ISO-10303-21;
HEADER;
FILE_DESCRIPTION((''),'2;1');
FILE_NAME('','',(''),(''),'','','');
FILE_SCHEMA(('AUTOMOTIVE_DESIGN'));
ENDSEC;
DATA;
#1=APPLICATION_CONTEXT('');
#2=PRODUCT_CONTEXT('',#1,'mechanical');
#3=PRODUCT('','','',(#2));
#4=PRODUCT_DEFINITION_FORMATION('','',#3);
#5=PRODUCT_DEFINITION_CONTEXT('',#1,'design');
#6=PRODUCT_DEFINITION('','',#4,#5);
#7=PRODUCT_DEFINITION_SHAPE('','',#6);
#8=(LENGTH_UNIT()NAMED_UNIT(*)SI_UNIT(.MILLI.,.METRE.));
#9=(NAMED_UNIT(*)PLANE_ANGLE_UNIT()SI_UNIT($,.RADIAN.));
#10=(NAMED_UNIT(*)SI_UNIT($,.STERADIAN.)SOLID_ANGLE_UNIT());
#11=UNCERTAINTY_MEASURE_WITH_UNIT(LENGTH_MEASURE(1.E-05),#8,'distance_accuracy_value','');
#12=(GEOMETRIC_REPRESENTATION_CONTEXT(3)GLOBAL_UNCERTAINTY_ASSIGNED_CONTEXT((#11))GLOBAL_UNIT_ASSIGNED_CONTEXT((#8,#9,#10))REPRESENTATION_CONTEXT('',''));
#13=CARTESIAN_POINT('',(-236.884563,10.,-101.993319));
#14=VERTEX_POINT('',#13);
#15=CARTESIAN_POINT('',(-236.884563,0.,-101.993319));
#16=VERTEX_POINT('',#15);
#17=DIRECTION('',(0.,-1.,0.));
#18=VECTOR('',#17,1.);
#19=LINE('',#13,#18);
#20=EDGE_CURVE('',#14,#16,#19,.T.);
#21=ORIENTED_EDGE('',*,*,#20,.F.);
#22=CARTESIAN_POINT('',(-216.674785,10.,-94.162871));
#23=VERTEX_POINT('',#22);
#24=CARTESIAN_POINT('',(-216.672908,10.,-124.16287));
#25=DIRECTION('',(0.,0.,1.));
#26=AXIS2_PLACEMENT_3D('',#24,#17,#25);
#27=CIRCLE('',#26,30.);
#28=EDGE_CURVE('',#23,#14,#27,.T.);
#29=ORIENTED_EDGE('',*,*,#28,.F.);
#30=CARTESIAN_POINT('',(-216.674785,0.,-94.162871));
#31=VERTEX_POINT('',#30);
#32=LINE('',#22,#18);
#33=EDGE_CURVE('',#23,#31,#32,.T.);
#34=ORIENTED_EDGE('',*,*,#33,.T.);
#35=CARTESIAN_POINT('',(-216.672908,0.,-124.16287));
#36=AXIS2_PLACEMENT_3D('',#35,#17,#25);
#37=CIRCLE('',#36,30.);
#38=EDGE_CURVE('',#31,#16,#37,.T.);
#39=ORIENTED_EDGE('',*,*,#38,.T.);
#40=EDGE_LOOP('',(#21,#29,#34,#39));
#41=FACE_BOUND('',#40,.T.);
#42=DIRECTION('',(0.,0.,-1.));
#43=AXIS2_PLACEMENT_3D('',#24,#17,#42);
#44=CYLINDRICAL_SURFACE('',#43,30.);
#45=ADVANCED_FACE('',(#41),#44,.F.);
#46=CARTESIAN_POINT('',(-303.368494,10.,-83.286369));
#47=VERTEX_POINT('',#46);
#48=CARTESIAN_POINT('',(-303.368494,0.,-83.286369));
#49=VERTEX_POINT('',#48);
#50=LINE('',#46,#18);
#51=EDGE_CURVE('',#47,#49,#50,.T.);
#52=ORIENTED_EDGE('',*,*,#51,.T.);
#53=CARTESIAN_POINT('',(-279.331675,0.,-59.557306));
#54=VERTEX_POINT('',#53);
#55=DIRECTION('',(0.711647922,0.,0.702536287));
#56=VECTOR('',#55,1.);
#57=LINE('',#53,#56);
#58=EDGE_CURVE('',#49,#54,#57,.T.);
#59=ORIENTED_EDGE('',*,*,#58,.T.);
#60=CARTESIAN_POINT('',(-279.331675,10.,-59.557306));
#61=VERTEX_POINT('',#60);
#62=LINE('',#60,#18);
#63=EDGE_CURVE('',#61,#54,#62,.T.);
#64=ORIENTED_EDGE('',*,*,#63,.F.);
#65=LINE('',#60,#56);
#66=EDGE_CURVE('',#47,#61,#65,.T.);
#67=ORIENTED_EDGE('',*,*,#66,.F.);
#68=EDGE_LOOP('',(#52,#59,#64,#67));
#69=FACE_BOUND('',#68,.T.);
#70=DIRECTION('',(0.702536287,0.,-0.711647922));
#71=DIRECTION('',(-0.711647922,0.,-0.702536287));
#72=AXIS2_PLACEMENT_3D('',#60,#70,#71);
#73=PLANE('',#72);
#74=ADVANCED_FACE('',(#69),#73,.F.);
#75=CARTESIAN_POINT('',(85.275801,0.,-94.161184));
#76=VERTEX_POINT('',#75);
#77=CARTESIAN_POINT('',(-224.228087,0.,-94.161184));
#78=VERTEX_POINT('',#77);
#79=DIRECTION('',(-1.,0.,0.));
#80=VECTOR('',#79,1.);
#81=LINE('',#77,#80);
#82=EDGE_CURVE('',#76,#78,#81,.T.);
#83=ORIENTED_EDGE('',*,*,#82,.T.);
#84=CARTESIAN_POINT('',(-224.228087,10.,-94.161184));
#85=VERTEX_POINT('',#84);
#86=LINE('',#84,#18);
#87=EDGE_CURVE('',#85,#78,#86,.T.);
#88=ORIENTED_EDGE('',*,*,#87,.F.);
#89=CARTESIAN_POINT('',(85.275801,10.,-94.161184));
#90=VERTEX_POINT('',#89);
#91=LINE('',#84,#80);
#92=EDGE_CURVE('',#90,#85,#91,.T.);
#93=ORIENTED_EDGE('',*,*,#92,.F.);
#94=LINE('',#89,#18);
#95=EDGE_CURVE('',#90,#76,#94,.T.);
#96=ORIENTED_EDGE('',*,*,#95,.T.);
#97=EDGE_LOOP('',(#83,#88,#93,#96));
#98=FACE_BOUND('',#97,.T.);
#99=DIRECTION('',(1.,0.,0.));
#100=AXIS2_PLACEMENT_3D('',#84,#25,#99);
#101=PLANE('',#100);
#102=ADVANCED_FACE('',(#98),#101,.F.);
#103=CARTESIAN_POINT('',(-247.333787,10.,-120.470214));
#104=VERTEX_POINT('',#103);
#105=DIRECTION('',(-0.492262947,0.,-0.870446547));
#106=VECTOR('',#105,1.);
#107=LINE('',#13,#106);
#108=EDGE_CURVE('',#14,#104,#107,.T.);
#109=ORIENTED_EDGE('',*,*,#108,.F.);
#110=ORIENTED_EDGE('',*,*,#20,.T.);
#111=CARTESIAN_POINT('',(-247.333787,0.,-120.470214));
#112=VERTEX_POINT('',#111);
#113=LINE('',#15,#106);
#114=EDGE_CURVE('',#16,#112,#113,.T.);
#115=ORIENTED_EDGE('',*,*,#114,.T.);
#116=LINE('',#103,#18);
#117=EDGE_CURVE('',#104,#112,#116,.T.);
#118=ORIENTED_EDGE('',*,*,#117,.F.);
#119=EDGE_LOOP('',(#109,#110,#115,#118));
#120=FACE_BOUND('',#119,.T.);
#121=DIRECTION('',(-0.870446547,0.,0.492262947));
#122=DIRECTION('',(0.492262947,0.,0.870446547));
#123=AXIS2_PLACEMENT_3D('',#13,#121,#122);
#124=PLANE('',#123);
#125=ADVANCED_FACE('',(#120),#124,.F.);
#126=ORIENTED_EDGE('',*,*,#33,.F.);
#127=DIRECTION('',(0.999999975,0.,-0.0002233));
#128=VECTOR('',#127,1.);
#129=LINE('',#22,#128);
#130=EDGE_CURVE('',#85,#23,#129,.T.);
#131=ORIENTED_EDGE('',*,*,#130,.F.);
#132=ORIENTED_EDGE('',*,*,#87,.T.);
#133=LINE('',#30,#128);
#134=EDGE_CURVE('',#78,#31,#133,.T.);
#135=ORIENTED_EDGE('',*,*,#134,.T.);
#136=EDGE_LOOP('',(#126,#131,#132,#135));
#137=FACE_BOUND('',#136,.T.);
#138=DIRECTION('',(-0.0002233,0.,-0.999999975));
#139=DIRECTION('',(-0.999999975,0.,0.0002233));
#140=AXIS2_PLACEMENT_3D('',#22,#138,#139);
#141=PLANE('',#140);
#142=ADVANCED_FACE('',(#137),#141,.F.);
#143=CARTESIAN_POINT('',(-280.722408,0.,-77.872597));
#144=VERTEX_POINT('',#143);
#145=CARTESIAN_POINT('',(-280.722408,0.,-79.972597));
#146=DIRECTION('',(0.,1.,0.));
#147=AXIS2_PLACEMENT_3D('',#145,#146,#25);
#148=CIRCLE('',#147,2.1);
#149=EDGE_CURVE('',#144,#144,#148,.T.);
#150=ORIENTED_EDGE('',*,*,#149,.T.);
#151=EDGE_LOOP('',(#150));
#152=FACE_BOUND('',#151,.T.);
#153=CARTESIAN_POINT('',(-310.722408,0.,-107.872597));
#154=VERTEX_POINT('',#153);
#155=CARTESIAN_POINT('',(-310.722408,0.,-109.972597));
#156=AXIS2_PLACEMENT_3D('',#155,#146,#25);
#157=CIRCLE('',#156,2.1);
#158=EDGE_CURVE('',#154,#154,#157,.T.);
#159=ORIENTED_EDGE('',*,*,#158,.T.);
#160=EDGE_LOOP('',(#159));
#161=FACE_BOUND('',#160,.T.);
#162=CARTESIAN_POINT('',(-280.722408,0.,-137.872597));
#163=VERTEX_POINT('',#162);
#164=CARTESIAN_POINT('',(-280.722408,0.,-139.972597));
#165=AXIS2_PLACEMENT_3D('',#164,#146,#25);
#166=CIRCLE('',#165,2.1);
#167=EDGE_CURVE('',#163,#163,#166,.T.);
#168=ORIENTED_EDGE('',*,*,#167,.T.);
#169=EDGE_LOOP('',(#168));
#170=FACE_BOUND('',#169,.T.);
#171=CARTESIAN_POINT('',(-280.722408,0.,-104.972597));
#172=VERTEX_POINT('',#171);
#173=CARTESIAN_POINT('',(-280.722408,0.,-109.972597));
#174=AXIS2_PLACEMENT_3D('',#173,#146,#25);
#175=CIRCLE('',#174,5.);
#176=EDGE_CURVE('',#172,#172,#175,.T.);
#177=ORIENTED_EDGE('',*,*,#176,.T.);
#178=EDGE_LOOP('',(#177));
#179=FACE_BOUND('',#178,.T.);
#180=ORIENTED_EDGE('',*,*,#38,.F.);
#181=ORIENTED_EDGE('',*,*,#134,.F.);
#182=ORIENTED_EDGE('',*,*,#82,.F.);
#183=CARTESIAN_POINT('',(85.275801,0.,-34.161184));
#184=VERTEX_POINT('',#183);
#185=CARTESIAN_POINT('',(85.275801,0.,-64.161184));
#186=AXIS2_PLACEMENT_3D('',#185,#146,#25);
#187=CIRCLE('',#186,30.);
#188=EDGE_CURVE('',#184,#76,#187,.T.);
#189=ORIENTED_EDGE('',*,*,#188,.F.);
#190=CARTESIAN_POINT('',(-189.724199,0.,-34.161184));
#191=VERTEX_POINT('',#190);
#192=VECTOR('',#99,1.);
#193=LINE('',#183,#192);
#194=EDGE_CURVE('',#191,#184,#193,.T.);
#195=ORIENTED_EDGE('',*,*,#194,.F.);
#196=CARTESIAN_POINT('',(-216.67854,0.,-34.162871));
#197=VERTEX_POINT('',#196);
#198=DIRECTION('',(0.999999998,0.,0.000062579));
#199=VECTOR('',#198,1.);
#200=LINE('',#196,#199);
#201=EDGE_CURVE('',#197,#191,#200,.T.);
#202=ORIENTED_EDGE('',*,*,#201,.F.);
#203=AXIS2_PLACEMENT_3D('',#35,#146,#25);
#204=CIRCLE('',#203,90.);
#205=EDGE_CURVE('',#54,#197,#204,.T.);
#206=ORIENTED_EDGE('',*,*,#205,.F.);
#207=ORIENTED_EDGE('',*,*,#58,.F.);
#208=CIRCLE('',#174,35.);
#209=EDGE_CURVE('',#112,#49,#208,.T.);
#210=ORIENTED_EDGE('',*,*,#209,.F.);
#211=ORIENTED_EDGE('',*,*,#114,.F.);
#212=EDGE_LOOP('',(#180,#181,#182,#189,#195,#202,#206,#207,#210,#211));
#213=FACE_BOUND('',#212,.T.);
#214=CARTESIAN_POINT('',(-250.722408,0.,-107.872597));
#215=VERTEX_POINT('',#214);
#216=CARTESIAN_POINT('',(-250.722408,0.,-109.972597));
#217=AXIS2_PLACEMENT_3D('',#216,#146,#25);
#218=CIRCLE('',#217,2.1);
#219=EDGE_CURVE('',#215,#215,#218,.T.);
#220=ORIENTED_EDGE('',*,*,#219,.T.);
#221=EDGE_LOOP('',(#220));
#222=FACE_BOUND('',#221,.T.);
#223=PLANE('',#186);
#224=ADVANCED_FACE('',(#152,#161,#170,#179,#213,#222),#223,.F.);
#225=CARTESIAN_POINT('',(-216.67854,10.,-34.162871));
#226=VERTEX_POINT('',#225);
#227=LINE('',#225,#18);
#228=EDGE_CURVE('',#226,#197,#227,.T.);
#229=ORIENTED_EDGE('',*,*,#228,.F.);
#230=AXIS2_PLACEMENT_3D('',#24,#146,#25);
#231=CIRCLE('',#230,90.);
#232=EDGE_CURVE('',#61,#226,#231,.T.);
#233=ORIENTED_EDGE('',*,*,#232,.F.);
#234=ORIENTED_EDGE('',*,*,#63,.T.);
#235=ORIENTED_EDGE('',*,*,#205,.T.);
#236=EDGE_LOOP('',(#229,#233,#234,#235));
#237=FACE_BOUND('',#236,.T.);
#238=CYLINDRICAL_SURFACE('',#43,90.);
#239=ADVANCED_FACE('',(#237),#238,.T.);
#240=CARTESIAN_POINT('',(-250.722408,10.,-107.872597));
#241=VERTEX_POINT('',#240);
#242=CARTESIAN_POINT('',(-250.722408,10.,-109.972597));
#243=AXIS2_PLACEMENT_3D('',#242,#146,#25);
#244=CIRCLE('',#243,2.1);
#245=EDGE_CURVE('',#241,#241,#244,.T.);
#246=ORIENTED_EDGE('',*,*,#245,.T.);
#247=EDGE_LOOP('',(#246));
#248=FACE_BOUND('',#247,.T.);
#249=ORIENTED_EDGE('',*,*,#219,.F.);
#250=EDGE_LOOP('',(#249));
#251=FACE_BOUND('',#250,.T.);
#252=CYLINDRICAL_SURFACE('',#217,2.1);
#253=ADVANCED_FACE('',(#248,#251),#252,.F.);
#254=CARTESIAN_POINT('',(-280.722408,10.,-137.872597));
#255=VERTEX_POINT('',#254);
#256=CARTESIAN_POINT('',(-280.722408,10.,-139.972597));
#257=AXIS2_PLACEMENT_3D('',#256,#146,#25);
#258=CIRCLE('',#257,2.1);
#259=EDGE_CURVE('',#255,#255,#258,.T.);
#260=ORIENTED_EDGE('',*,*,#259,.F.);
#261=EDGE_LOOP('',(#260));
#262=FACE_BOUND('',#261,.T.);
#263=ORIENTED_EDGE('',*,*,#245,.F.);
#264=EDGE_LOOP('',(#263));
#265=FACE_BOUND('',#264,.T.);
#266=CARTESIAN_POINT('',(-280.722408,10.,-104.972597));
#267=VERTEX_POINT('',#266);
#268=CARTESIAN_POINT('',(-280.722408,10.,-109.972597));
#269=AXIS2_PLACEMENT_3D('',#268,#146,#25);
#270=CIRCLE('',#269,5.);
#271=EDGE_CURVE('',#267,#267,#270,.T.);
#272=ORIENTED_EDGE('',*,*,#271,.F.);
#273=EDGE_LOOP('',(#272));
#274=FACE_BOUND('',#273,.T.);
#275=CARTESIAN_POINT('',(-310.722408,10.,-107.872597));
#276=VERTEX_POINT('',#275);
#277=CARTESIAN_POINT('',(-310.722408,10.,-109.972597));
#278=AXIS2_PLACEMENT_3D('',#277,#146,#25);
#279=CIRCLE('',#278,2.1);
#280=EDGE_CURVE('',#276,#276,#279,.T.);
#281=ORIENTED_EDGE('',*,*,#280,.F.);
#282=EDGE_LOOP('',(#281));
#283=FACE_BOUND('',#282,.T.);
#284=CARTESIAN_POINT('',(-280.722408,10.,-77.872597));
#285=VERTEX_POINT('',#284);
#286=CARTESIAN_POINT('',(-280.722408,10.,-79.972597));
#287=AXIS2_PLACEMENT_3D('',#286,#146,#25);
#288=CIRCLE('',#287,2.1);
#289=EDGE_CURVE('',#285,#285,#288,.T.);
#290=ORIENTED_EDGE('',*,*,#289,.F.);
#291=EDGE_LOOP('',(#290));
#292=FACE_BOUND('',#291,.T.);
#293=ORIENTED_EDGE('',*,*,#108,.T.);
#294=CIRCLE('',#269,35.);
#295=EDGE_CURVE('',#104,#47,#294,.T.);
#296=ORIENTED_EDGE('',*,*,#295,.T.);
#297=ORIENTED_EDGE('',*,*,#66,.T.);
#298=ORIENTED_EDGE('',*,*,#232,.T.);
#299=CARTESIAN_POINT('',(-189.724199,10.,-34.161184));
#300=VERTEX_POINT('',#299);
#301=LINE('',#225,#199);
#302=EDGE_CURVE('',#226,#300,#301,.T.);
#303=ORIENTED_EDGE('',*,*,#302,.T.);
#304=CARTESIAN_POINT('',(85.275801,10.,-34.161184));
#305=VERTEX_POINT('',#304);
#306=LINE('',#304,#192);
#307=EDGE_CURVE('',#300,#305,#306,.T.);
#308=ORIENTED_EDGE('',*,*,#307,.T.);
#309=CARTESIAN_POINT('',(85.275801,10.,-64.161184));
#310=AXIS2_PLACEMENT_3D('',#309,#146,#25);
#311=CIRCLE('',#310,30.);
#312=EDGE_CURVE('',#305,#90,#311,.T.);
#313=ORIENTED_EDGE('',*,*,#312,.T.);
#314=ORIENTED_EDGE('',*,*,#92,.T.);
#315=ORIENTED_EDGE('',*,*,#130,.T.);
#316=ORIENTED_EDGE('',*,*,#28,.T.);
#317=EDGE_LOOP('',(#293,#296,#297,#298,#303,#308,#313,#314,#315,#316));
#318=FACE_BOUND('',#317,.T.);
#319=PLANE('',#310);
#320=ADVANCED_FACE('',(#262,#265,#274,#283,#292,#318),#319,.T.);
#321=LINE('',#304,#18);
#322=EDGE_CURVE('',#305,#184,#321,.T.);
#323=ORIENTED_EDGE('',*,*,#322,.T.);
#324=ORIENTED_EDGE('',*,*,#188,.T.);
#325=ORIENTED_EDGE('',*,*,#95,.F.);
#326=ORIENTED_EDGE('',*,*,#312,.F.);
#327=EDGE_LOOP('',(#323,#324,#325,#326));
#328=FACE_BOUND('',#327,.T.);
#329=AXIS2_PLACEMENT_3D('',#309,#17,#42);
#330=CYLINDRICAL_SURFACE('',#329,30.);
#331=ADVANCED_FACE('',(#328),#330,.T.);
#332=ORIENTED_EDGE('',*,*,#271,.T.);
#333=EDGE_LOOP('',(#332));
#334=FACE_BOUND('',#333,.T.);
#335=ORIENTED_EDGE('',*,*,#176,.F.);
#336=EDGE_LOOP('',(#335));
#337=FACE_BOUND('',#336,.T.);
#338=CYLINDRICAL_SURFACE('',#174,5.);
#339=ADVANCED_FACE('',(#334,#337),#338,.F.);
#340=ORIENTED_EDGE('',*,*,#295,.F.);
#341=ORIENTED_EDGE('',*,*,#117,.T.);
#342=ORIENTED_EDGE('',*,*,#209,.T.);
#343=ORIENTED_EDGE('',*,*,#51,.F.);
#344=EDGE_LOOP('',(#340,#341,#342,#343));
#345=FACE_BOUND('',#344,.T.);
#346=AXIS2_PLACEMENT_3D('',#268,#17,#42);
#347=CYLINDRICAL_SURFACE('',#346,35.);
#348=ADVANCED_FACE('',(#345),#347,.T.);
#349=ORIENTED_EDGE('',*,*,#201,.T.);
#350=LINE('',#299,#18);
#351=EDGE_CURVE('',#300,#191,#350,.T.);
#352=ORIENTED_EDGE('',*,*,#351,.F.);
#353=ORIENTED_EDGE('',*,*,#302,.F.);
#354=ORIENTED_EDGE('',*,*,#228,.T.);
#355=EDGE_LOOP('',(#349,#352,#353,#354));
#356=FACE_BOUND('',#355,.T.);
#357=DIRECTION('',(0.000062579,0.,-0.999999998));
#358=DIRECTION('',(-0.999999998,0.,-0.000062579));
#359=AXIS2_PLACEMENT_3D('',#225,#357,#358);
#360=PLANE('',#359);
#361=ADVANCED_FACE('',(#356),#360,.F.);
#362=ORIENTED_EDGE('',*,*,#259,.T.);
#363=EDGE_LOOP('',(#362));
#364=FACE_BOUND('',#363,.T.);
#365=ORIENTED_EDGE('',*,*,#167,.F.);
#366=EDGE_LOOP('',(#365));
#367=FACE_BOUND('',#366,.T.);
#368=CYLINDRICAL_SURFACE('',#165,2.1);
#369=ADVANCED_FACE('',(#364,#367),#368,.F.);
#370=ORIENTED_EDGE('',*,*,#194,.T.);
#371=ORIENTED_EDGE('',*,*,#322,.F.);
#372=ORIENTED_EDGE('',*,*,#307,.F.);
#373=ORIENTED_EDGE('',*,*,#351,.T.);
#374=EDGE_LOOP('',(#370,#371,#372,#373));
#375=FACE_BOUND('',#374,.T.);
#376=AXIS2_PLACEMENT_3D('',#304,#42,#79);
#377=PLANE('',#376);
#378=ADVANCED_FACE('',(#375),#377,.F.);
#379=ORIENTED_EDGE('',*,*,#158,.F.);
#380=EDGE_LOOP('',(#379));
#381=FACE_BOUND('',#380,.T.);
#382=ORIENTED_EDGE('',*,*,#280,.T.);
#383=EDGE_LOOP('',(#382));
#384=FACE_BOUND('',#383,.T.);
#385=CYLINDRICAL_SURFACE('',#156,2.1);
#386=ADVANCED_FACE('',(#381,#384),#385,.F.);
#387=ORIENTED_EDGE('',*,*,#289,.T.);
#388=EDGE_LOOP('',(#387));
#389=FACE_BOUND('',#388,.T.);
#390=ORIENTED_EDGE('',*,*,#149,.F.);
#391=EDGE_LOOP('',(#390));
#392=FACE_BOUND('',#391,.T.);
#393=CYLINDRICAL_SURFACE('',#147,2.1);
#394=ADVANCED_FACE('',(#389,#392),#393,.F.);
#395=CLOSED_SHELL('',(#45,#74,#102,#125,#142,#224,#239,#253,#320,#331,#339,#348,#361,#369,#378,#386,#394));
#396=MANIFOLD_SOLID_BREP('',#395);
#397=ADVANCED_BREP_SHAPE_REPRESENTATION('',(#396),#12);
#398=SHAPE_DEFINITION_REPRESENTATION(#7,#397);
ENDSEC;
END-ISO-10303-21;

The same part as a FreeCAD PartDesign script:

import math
import FreeCAD as App
import Part
import Sketcher
Q = App.Units.Quantity

doc = App.newDocument("Part")
body = doc.addObject("PartDesign::Body", "Body")

# Sketch on XZ plane
sketch1 = body.newObject("Sketcher::SketchObject", "Sketch")
sketch1.AttachmentSupport = (doc.getObject("XZ_Plane"), [""])
sketch1.MapMode = "FlatFace"
sketch1.addGeometry([
    Part.LineSegment(App.Vector(85.275801, -94.161184, 0), App.Vector(-224.228087, -94.161184, 0)),  # 0
    Part.LineSegment(App.Vector(-224.228087, -94.161184, 0), App.Vector(-216.674785, -94.162871, 0)),  # 1
    Part.ArcOfCircle(Part.Circle(App.Vector(-216.672908, -124.16287, 0), App.Vector(0, 0, 1), 30), math.radians(90.003585), math.radians(132.354972)),  # 2
    Part.LineSegment(App.Vector(-236.884563, -101.993319, 0), App.Vector(-247.333787, -120.470214, 0)),  # 3
    Part.ArcOfCircle(Part.Circle(App.Vector(-280.722408, -109.972597, 0), App.Vector(0, 0, 1), 35), math.radians(130.318127), math.radians(342.546485)),  # 4
    Part.LineSegment(App.Vector(-303.368494, -83.286369, 0), App.Vector(-279.331675, -59.557306, 0)),  # 5
    Part.ArcOfCircle(Part.Circle(App.Vector(-216.672908, -124.16287, 0), App.Vector(0, 0, 1), 90), math.radians(90.003586), math.radians(134.123599)),  # 6
    Part.LineSegment(App.Vector(-216.67854, -34.162871, 0), App.Vector(-189.724199, -34.161184, 0)),  # 7
    Part.LineSegment(App.Vector(-189.724199, -34.161184, 0), App.Vector(85.275801, -34.161184, 0)),  # 8
    Part.ArcOfCircle(Part.Circle(App.Vector(85.275801, -64.161184, 0), App.Vector(0, 0, 1), 30), math.radians(-90), math.radians(90)),  # 9
], False)
sketch1.addConstraint([
    Sketcher.Constraint("Coincident", 0, 2, 1, 1),
    Sketcher.Constraint("Coincident", 1, 2, 2, 1),
    Sketcher.Constraint("Coincident", 2, 2, 3, 1),
    Sketcher.Constraint("Coincident", 3, 2, 4, 2),
    Sketcher.Constraint("Coincident", 4, 1, 5, 1),
    Sketcher.Constraint("Coincident", 5, 2, 6, 2),
    Sketcher.Constraint("Tangent", 6, 1, 7, 1),
    Sketcher.Constraint("Coincident", 7, 2, 8, 1),
    Sketcher.Constraint("Tangent", 8, 2, 9, 2),
    Sketcher.Constraint("Tangent", 9, 1, 0, 1),
    Sketcher.Constraint("Horizontal", 0),
    Sketcher.Constraint("Horizontal", 8),
    Sketcher.Constraint("Coincident", 6, 3, 2, 3),
    Sketcher.Constraint("Equal", 2, 9),
    Sketcher.Constraint("Radius", 2, Q("30 mm")),
    Sketcher.Constraint("Radius", 4, Q("35 mm")),
    Sketcher.Constraint("Radius", 6, Q("90 mm")),
    Sketcher.Constraint("DistanceX", 8, 1, 8, 2, Q("275 mm")),
    Sketcher.Constraint("DistanceX", -1, 1, 9, 3, Q("85.275801 mm")),
    Sketcher.Constraint("DistanceX", 4, 3, 2, 3, Q("64.0495 mm")),
    Sketcher.Constraint("DistanceX", 0, 2, 1, 2, Q("7.553302 mm")),
    Sketcher.Constraint("DistanceX", 3, 2, 0, 2, Q("23.1057 mm")),
    Sketcher.Constraint("DistanceY", 1, 2, 4, 1, Q("10.876502 mm")),
    Sketcher.Constraint("Distance", 5, Q("33.776281 mm")),
    Sketcher.Constraint("Distance", 7, Q("26.954341 mm")),
    Sketcher.Constraint("DistanceX", 0, 2, 0, 1, Q("309.503888 mm")),
    Sketcher.Constraint("DistanceX", 2, 3, -1, 1, Q("216.672908 mm")),
    Sketcher.Constraint("DistanceY", 2, 3, -1, 1, Q("124.16287 mm")),
    Sketcher.Constraint("DistanceY", 2, 2, -1, 1, Q("101.993319 mm")),
    Sketcher.Constraint("DistanceY", 3, 2, 0, 2, Q("26.30903 mm")),
])
pad1 = body.newObject("PartDesign::Pad", "Pad")
pad1.Profile = sketch1
pad1.Length = 10
pad1.Reversed = True

# Sketch on XZ plane
sketch2 = body.newObject("Sketcher::SketchObject", "Sketch001")
sketch2.AttachmentSupport = (doc.getObject("XZ_Plane"), [""])
sketch2.MapMode = "FlatFace"
sketch2.AttachmentOffset = App.Placement(App.Vector(0, 0, -10), App.Rotation())
sketch2.addGeometry([
    Part.Circle(App.Vector(-280.722408, -109.972597, 0), App.Vector(0, 0, 1), 5),  # 0
    Part.Circle(App.Vector(-280.722408, -139.972597, 0), App.Vector(0, 0, 1), 2.1),  # 1
    Part.Circle(App.Vector(-310.722408, -109.972597, 0), App.Vector(0, 0, 1), 2.1),  # 2
    Part.Circle(App.Vector(-280.722408, -79.972597, 0), App.Vector(0, 0, 1), 2.1),  # 3
    Part.Circle(App.Vector(-250.722408, -109.972597, 0), App.Vector(0, 0, 1), 2.1),  # 4
], False)
sketch2.addConstraint([
    Sketcher.Constraint("Equal", 1, 2),
    Sketcher.Constraint("Equal", 2, 3),
    Sketcher.Constraint("Equal", 3, 4),
    Sketcher.Constraint("Horizontal", 0, 3, 2, 3),
    Sketcher.Constraint("Horizontal", 2, 3, 4, 3),
    Sketcher.Constraint("Vertical", 0, 3, 1, 3),
    Sketcher.Constraint("Vertical", 1, 3, 3, 3),
    Sketcher.Constraint("Diameter", 0, Q("10 mm")),
    Sketcher.Constraint("Diameter", 1, Q("4.2 mm")),
    Sketcher.Constraint("DistanceY", 1, 3, 0, 3, Q("30 mm")),
    Sketcher.Constraint("DistanceX", 2, 3, 0, 3, Q("30 mm")),
    Sketcher.Constraint("DistanceY", 0, 3, 3, 3, Q("30 mm")),
    Sketcher.Constraint("DistanceX", 0, 3, 4, 3, Q("30 mm")),
    Sketcher.Constraint("DistanceX", 0, 3, -1, 1, Q("280.722408 mm")),
    Sketcher.Constraint("DistanceY", 0, 3, -1, 1, Q("109.972597 mm")),
])
pocket1 = body.newObject("PartDesign::Pocket", "Pocket")
pocket1.Profile = sketch2
pocket1.Length = 10
pocket1.Reversed = True

doc.recompute()
